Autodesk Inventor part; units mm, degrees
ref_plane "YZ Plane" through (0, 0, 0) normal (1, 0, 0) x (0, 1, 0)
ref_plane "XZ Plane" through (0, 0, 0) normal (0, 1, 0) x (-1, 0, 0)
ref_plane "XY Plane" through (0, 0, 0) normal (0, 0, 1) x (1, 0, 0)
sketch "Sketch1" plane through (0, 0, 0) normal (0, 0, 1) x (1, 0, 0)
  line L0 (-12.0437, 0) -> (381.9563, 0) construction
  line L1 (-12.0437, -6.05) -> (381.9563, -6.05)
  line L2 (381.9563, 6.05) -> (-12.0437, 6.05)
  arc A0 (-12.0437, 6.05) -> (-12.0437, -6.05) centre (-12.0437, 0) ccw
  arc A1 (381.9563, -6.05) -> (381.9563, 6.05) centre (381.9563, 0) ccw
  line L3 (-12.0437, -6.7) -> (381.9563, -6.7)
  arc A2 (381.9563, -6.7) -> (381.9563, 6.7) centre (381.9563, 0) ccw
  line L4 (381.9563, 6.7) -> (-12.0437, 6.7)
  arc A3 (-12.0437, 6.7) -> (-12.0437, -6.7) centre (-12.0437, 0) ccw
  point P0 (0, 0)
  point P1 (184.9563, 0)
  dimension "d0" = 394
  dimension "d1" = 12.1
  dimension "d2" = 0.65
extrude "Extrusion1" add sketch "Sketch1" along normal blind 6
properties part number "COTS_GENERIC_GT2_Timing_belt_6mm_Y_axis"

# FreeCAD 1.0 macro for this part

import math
import FreeCAD as App
import Part
import Sketcher
Q = App.Units.Quantity

doc = App.newDocument("Part")
params = doc.addObject("Spreadsheet::Sheet", "Params")
for row, (alias, value) in enumerate([
    ("sketch1_width", "394 mm"),
    ("sketch1_radius", "6.05 mm"),
    ("sketch1_radius2", "6.7 mm"),
    ("pad1_length", "6 mm"),
], start=1):
    params.set(f"A{row}", alias)
    params.set(f"B{row}", "=" + value)
    params.setAlias(f"B{row}", alias)

body = doc.addObject("PartDesign::Body", "Body")

sketch1 = body.newObject("Sketcher::SketchObject", "Sketch")
sketch1.AttachmentSupport = (doc.getObject("XY_Plane"), [""])
sketch1.MapMode = "FlatFace"
sketch1.addGeometry(Part.ArcOfCircle(Part.Circle(App.Vector(-12, 0, 0), App.Vector(0, 0, 1), 7), math.radians(90), math.radians(270)), False)
sketch1.addGeometry(Part.LineSegment(App.Vector(-12, -7, 0), App.Vector(382, -7, 0)), False)
sketch1.addGeometry(Part.ArcOfCircle(Part.Circle(App.Vector(382, 0, 0), App.Vector(0, 0, 1), 7), math.radians(-90), math.radians(90)), False)
sketch1.addGeometry(Part.LineSegment(App.Vector(382, 7, 0), App.Vector(-12, 7, 0)), False)
sketch1.addGeometry(Part.LineSegment(App.Vector(382, -6, 0), App.Vector(-12, -6, 0)), False)
sketch1.addGeometry(Part.ArcOfCircle(Part.Circle(App.Vector(-12, 0, 0), App.Vector(0, 0, 1), 6), math.radians(90), math.radians(270)), False)
sketch1.addGeometry(Part.LineSegment(App.Vector(-12, 6, 0), App.Vector(382, 6, 0)), False)
sketch1.addGeometry(Part.ArcOfCircle(Part.Circle(App.Vector(382, 0, 0), App.Vector(0, 0, 1), 6), math.radians(-90), math.radians(90)), False)
sketch1.addConstraint(Sketcher.Constraint("Tangent", 0, 2, 1, 1))
sketch1.addConstraint(Sketcher.Constraint("Tangent", 1, 2, 2, 1))
sketch1.addConstraint(Sketcher.Constraint("Tangent", 2, 2, 3, 1))
sketch1.addConstraint(Sketcher.Constraint("Tangent", 3, 2, 0, 1))
sketch1.addConstraint(Sketcher.Constraint("Tangent", 4, 2, 5, 2))
sketch1.addConstraint(Sketcher.Constraint("Tangent", 5, 1, 6, 1))
sketch1.addConstraint(Sketcher.Constraint("Tangent", 6, 2, 7, 2))
sketch1.addConstraint(Sketcher.Constraint("Tangent", 7, 1, 4, 1))
sketch1.addConstraint(Sketcher.Constraint("Horizontal", 1))
sketch1.addConstraint(Sketcher.Constraint("Horizontal", 3))
sketch1.addConstraint(Sketcher.Constraint("Horizontal", 4))
sketch1.addConstraint(Sketcher.Constraint("Horizontal", 6))
sketch1.addConstraint(Sketcher.Constraint("Coincident", 5, 3, 0, 3))
sketch1.addConstraint(Sketcher.Constraint("PointOnObject", 0, 3, -1))
sketch1.addConstraint(Sketcher.Constraint("Vertical", 7, 3, 1, 2))
sketch1.addConstraint(Sketcher.Constraint("DistanceX", 1, 1, 1, 2, Q("394 mm")))
sketch1.addConstraint(Sketcher.Constraint("Radius", 5, Q("6.05 mm")))
sketch1.addConstraint(Sketcher.Constraint("Radius", 0, Q("6.7 mm")))
sketch1.addConstraint(Sketcher.Constraint("DistanceX", 0, 3, -1, 1, Q("12.0437 mm")))
sketch1.setExpression("Constraints[15]", "Params.sketch1_width")
sketch1.setExpression("Constraints[16]", "Params.sketch1_radius")
sketch1.setExpression("Constraints[17]", "Params.sketch1_radius2")
pad1 = body.newObject("PartDesign::Pad", "Pad")
pad1.Profile = sketch1
pad1.setExpression("Length", "Params.pad1_length")

doc.recompute()
